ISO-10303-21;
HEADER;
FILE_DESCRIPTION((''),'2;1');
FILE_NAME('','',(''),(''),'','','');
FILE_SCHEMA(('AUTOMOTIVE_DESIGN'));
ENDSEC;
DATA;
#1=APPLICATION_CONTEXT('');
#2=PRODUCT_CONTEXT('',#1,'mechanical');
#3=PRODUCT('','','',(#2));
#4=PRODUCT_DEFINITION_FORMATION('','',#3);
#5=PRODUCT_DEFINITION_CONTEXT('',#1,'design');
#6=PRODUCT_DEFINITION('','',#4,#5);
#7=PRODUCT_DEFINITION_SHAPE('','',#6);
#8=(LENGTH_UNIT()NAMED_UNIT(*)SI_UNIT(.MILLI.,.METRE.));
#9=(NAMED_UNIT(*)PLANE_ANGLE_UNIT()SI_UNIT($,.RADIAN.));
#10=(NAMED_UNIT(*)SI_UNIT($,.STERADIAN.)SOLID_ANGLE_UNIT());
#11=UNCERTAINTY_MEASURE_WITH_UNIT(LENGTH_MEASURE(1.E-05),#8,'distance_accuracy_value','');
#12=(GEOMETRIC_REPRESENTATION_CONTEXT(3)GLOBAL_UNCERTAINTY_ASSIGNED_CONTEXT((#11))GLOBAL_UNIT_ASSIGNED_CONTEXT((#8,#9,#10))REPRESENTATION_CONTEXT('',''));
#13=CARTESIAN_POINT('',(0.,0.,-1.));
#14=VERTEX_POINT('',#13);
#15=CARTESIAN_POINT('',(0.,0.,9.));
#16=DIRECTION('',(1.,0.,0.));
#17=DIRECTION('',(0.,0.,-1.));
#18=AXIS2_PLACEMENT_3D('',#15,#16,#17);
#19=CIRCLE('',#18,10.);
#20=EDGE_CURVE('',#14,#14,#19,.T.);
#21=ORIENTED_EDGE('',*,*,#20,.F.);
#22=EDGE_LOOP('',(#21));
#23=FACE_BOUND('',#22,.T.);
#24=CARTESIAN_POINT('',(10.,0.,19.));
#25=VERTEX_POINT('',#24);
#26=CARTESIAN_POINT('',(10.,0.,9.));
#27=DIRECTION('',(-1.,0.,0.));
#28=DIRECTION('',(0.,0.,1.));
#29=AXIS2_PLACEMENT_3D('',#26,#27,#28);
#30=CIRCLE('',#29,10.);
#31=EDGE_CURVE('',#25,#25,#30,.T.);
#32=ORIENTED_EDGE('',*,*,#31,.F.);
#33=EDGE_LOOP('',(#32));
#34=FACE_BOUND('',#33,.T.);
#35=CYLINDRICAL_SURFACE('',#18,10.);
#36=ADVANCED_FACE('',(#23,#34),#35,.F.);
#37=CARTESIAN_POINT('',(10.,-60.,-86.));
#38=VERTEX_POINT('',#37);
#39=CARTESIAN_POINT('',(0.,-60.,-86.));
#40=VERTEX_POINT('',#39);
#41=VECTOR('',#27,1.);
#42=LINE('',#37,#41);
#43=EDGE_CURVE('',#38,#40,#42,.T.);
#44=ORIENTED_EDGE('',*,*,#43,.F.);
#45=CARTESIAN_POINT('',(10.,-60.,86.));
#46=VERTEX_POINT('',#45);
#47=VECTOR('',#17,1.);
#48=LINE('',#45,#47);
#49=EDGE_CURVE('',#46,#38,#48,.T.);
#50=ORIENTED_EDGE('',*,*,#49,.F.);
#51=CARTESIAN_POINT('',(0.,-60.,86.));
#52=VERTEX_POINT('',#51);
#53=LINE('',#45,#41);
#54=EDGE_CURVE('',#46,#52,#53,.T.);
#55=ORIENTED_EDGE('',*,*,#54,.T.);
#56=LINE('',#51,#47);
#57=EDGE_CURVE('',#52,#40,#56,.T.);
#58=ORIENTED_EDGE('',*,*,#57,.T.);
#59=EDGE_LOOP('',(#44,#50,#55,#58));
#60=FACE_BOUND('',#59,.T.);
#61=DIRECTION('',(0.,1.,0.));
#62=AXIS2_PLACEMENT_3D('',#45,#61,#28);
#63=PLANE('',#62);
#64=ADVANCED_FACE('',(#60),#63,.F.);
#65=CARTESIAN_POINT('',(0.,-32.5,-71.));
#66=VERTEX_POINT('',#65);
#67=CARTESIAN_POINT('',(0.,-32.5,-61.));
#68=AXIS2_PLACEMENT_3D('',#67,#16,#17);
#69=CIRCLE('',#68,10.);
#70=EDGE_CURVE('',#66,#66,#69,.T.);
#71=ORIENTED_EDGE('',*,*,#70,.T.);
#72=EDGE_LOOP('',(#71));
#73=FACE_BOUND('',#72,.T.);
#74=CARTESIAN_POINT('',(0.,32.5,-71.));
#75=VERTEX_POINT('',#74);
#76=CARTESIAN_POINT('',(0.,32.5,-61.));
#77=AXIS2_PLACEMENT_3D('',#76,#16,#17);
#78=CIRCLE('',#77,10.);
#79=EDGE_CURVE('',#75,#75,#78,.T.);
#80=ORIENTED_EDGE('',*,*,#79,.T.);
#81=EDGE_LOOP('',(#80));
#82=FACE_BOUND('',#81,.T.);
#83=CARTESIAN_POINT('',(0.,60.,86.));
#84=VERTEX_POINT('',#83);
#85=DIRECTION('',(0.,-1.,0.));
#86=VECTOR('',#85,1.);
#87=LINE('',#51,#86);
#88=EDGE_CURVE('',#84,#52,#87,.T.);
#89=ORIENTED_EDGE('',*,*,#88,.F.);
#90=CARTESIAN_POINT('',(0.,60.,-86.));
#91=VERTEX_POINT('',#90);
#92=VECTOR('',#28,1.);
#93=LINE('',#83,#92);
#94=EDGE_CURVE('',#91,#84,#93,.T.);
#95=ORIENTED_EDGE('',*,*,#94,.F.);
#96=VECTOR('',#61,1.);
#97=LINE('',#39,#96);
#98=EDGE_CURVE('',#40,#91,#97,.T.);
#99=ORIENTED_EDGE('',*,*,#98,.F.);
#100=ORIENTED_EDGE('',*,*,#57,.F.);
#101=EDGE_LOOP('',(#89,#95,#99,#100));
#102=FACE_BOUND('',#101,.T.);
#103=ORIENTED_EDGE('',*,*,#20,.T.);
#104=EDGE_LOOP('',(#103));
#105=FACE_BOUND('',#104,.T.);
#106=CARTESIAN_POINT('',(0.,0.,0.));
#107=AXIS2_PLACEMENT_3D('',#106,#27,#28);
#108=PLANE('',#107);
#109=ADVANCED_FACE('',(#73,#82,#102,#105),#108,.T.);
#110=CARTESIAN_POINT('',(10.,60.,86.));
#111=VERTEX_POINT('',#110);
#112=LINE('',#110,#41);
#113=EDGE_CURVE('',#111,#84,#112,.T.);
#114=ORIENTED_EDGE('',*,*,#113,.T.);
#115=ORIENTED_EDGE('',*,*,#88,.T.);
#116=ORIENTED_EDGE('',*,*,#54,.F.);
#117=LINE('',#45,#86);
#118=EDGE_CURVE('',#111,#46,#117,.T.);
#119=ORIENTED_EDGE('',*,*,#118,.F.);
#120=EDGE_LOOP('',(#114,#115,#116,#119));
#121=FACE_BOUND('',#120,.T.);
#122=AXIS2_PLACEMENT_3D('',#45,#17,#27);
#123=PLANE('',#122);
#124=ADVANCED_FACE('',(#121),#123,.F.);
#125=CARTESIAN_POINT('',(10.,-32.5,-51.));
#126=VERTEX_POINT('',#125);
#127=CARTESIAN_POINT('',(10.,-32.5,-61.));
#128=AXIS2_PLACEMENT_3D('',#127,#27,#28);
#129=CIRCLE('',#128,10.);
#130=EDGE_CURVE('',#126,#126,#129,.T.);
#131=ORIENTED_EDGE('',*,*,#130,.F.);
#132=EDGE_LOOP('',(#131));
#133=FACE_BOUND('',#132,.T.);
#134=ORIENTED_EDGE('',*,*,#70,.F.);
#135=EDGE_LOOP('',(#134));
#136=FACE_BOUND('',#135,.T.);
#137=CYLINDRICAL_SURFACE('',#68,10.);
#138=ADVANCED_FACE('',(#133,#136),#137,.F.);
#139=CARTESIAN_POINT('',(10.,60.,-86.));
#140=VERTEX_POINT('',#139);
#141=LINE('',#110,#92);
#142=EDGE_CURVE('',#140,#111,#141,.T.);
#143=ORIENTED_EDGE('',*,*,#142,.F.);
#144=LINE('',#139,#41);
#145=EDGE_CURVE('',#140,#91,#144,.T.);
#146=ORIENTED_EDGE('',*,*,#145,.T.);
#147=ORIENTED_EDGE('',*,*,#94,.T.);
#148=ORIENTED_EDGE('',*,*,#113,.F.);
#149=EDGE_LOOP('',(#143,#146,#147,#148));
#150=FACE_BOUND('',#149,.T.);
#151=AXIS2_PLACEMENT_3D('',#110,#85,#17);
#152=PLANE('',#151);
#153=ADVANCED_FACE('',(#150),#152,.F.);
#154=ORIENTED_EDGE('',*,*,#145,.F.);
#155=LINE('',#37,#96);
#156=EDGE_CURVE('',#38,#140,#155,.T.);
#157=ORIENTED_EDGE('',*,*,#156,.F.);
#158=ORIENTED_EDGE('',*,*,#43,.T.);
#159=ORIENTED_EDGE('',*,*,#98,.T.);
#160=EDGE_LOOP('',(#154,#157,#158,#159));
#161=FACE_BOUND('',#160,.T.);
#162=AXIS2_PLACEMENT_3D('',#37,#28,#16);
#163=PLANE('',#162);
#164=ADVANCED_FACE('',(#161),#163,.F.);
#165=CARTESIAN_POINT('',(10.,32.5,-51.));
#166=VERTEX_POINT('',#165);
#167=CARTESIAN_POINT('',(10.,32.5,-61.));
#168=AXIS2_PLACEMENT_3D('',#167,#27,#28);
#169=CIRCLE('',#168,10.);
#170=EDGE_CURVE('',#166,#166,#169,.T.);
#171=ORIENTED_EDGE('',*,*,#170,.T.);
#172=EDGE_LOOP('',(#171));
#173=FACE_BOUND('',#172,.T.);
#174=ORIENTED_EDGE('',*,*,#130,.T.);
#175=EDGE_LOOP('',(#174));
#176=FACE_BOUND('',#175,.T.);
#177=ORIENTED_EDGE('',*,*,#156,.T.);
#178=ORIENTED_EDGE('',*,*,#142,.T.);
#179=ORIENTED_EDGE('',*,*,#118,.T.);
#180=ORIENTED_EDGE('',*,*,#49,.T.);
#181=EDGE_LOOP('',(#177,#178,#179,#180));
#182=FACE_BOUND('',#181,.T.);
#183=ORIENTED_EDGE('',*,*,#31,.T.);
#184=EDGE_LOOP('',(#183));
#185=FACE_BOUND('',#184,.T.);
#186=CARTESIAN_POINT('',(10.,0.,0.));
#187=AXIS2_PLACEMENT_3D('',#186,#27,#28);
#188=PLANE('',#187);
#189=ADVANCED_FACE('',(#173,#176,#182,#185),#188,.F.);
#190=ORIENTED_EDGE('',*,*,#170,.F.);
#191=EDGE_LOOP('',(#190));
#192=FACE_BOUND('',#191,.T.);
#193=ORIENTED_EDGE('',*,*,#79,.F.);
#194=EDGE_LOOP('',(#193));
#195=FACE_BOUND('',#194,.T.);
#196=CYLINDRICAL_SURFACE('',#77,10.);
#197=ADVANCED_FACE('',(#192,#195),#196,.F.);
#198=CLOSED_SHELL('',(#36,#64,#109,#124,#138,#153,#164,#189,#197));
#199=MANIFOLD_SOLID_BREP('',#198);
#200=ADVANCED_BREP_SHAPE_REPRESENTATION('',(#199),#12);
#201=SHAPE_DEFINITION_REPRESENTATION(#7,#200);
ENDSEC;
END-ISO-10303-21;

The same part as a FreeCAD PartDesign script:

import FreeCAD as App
import Part
import Sketcher
from FreeCAD import Vector
Q = App.Units.Quantity

doc = App.newDocument("Part")
body = doc.addObject("PartDesign::Body", "Body")

# Sketch on YZ plane
sketch1 = body.newObject("Sketcher::SketchObject", "Sketch")
sketch1.AttachmentSupport = (doc.getObject("YZ_Plane"), [""])
sketch1.MapMode = "FlatFace"
sketch1.addGeometry(Part.LineSegment(Vector(60, 86, 0), Vector(-60, 86, 0)), False)
sketch1.addGeometry(Part.LineSegment(Vector(-60, 86, 0), Vector(-60, -86, 0)), False)
sketch1.addGeometry(Part.LineSegment(Vector(-60, -86, 0), Vector(60, -86, 0)), False)
sketch1.addGeometry(Part.LineSegment(Vector(60, -86, 0), Vector(60, 86, 0)), False)
sketch1.addConstraint(Sketcher.Constraint("Coincident", 0, 2, 1, 1))
sketch1.addConstraint(Sketcher.Constraint("Coincident", 1, 2, 2, 1))
sketch1.addConstraint(Sketcher.Constraint("Coincident", 2, 2, 3, 1))
sketch1.addConstraint(Sketcher.Constraint("Coincident", 3, 2, 0, 1))
sketch1.addConstraint(Sketcher.Constraint("Horizontal", 0))
sketch1.addConstraint(Sketcher.Constraint("Vertical", 1))
sketch1.addConstraint(Sketcher.Constraint("Horizontal", 2))
sketch1.addConstraint(Sketcher.Constraint("Vertical", 3))
sketch1.addConstraint(Sketcher.Constraint("Symmetric", 0, 2, 2, 2, -1, 1))
sketch1.addConstraint(Sketcher.Constraint("DistanceX", 0, 2, 0, 1, Q("120 mm")))
sketch1.addConstraint(Sketcher.Constraint("DistanceY", 1, 2, 1, 1, Q("172 mm")))
pad1 = body.newObject("PartDesign::Pad", "Pad")
pad1.Profile = sketch1
pad1.Length = 10

# Sketch on YZ plane
sketch2 = body.newObject("Sketcher::SketchObject", "Sketch001")
sketch2.AttachmentSupport = (doc.getObject("YZ_Plane"), [""])
sketch2.MapMode = "FlatFace"
sketch2.AttachmentOffset = App.Placement(Vector(0, 0, 10), App.Rotation())
sketch2.addGeometry(Part.Circle(Vector(0, 9, 0), Vector(0, 0, 1), 10), False)
sketch2.addGeometry(Part.Circle(Vector(32.5, -61, 0), Vector(0, 0, 1), 10), False)
sketch2.addGeometry(Part.Circle(Vector(-32.5, -61, 0), Vector(0, 0, 1), 10), False)
sketch2.addConstraint(Sketcher.Constraint("Equal", 0, 1))
sketch2.addConstraint(Sketcher.Constraint("Equal", 1, 2))
sketch2.addConstraint(Sketcher.Constraint("Symmetric", 1, 3, 2, 3, -2))
sketch2.addConstraint(Sketcher.Constraint("PointOnObject", 0, 3, -2))
sketch2.addConstraint(Sketcher.Constraint("Diameter", 0, Q("20 mm")))
sketch2.addConstraint(Sketcher.Constraint("DistanceY", -1, 1, 0, 3, Q("9 mm")))
sketch2.addConstraint(Sketcher.Constraint("DistanceY", 1, 3, -1, 1, Q("61 mm")))
sketch2.addConstraint(Sketcher.Constraint("DistanceX", 2, 3, 1, 3, Q("65 mm")))
pocket1 = body.newObject("PartDesign::Pocket", "Pocket")
pocket1.Profile = sketch2
pocket1.Type = "ThroughAll"
pocket1.Midplane = True

doc.recompute()
